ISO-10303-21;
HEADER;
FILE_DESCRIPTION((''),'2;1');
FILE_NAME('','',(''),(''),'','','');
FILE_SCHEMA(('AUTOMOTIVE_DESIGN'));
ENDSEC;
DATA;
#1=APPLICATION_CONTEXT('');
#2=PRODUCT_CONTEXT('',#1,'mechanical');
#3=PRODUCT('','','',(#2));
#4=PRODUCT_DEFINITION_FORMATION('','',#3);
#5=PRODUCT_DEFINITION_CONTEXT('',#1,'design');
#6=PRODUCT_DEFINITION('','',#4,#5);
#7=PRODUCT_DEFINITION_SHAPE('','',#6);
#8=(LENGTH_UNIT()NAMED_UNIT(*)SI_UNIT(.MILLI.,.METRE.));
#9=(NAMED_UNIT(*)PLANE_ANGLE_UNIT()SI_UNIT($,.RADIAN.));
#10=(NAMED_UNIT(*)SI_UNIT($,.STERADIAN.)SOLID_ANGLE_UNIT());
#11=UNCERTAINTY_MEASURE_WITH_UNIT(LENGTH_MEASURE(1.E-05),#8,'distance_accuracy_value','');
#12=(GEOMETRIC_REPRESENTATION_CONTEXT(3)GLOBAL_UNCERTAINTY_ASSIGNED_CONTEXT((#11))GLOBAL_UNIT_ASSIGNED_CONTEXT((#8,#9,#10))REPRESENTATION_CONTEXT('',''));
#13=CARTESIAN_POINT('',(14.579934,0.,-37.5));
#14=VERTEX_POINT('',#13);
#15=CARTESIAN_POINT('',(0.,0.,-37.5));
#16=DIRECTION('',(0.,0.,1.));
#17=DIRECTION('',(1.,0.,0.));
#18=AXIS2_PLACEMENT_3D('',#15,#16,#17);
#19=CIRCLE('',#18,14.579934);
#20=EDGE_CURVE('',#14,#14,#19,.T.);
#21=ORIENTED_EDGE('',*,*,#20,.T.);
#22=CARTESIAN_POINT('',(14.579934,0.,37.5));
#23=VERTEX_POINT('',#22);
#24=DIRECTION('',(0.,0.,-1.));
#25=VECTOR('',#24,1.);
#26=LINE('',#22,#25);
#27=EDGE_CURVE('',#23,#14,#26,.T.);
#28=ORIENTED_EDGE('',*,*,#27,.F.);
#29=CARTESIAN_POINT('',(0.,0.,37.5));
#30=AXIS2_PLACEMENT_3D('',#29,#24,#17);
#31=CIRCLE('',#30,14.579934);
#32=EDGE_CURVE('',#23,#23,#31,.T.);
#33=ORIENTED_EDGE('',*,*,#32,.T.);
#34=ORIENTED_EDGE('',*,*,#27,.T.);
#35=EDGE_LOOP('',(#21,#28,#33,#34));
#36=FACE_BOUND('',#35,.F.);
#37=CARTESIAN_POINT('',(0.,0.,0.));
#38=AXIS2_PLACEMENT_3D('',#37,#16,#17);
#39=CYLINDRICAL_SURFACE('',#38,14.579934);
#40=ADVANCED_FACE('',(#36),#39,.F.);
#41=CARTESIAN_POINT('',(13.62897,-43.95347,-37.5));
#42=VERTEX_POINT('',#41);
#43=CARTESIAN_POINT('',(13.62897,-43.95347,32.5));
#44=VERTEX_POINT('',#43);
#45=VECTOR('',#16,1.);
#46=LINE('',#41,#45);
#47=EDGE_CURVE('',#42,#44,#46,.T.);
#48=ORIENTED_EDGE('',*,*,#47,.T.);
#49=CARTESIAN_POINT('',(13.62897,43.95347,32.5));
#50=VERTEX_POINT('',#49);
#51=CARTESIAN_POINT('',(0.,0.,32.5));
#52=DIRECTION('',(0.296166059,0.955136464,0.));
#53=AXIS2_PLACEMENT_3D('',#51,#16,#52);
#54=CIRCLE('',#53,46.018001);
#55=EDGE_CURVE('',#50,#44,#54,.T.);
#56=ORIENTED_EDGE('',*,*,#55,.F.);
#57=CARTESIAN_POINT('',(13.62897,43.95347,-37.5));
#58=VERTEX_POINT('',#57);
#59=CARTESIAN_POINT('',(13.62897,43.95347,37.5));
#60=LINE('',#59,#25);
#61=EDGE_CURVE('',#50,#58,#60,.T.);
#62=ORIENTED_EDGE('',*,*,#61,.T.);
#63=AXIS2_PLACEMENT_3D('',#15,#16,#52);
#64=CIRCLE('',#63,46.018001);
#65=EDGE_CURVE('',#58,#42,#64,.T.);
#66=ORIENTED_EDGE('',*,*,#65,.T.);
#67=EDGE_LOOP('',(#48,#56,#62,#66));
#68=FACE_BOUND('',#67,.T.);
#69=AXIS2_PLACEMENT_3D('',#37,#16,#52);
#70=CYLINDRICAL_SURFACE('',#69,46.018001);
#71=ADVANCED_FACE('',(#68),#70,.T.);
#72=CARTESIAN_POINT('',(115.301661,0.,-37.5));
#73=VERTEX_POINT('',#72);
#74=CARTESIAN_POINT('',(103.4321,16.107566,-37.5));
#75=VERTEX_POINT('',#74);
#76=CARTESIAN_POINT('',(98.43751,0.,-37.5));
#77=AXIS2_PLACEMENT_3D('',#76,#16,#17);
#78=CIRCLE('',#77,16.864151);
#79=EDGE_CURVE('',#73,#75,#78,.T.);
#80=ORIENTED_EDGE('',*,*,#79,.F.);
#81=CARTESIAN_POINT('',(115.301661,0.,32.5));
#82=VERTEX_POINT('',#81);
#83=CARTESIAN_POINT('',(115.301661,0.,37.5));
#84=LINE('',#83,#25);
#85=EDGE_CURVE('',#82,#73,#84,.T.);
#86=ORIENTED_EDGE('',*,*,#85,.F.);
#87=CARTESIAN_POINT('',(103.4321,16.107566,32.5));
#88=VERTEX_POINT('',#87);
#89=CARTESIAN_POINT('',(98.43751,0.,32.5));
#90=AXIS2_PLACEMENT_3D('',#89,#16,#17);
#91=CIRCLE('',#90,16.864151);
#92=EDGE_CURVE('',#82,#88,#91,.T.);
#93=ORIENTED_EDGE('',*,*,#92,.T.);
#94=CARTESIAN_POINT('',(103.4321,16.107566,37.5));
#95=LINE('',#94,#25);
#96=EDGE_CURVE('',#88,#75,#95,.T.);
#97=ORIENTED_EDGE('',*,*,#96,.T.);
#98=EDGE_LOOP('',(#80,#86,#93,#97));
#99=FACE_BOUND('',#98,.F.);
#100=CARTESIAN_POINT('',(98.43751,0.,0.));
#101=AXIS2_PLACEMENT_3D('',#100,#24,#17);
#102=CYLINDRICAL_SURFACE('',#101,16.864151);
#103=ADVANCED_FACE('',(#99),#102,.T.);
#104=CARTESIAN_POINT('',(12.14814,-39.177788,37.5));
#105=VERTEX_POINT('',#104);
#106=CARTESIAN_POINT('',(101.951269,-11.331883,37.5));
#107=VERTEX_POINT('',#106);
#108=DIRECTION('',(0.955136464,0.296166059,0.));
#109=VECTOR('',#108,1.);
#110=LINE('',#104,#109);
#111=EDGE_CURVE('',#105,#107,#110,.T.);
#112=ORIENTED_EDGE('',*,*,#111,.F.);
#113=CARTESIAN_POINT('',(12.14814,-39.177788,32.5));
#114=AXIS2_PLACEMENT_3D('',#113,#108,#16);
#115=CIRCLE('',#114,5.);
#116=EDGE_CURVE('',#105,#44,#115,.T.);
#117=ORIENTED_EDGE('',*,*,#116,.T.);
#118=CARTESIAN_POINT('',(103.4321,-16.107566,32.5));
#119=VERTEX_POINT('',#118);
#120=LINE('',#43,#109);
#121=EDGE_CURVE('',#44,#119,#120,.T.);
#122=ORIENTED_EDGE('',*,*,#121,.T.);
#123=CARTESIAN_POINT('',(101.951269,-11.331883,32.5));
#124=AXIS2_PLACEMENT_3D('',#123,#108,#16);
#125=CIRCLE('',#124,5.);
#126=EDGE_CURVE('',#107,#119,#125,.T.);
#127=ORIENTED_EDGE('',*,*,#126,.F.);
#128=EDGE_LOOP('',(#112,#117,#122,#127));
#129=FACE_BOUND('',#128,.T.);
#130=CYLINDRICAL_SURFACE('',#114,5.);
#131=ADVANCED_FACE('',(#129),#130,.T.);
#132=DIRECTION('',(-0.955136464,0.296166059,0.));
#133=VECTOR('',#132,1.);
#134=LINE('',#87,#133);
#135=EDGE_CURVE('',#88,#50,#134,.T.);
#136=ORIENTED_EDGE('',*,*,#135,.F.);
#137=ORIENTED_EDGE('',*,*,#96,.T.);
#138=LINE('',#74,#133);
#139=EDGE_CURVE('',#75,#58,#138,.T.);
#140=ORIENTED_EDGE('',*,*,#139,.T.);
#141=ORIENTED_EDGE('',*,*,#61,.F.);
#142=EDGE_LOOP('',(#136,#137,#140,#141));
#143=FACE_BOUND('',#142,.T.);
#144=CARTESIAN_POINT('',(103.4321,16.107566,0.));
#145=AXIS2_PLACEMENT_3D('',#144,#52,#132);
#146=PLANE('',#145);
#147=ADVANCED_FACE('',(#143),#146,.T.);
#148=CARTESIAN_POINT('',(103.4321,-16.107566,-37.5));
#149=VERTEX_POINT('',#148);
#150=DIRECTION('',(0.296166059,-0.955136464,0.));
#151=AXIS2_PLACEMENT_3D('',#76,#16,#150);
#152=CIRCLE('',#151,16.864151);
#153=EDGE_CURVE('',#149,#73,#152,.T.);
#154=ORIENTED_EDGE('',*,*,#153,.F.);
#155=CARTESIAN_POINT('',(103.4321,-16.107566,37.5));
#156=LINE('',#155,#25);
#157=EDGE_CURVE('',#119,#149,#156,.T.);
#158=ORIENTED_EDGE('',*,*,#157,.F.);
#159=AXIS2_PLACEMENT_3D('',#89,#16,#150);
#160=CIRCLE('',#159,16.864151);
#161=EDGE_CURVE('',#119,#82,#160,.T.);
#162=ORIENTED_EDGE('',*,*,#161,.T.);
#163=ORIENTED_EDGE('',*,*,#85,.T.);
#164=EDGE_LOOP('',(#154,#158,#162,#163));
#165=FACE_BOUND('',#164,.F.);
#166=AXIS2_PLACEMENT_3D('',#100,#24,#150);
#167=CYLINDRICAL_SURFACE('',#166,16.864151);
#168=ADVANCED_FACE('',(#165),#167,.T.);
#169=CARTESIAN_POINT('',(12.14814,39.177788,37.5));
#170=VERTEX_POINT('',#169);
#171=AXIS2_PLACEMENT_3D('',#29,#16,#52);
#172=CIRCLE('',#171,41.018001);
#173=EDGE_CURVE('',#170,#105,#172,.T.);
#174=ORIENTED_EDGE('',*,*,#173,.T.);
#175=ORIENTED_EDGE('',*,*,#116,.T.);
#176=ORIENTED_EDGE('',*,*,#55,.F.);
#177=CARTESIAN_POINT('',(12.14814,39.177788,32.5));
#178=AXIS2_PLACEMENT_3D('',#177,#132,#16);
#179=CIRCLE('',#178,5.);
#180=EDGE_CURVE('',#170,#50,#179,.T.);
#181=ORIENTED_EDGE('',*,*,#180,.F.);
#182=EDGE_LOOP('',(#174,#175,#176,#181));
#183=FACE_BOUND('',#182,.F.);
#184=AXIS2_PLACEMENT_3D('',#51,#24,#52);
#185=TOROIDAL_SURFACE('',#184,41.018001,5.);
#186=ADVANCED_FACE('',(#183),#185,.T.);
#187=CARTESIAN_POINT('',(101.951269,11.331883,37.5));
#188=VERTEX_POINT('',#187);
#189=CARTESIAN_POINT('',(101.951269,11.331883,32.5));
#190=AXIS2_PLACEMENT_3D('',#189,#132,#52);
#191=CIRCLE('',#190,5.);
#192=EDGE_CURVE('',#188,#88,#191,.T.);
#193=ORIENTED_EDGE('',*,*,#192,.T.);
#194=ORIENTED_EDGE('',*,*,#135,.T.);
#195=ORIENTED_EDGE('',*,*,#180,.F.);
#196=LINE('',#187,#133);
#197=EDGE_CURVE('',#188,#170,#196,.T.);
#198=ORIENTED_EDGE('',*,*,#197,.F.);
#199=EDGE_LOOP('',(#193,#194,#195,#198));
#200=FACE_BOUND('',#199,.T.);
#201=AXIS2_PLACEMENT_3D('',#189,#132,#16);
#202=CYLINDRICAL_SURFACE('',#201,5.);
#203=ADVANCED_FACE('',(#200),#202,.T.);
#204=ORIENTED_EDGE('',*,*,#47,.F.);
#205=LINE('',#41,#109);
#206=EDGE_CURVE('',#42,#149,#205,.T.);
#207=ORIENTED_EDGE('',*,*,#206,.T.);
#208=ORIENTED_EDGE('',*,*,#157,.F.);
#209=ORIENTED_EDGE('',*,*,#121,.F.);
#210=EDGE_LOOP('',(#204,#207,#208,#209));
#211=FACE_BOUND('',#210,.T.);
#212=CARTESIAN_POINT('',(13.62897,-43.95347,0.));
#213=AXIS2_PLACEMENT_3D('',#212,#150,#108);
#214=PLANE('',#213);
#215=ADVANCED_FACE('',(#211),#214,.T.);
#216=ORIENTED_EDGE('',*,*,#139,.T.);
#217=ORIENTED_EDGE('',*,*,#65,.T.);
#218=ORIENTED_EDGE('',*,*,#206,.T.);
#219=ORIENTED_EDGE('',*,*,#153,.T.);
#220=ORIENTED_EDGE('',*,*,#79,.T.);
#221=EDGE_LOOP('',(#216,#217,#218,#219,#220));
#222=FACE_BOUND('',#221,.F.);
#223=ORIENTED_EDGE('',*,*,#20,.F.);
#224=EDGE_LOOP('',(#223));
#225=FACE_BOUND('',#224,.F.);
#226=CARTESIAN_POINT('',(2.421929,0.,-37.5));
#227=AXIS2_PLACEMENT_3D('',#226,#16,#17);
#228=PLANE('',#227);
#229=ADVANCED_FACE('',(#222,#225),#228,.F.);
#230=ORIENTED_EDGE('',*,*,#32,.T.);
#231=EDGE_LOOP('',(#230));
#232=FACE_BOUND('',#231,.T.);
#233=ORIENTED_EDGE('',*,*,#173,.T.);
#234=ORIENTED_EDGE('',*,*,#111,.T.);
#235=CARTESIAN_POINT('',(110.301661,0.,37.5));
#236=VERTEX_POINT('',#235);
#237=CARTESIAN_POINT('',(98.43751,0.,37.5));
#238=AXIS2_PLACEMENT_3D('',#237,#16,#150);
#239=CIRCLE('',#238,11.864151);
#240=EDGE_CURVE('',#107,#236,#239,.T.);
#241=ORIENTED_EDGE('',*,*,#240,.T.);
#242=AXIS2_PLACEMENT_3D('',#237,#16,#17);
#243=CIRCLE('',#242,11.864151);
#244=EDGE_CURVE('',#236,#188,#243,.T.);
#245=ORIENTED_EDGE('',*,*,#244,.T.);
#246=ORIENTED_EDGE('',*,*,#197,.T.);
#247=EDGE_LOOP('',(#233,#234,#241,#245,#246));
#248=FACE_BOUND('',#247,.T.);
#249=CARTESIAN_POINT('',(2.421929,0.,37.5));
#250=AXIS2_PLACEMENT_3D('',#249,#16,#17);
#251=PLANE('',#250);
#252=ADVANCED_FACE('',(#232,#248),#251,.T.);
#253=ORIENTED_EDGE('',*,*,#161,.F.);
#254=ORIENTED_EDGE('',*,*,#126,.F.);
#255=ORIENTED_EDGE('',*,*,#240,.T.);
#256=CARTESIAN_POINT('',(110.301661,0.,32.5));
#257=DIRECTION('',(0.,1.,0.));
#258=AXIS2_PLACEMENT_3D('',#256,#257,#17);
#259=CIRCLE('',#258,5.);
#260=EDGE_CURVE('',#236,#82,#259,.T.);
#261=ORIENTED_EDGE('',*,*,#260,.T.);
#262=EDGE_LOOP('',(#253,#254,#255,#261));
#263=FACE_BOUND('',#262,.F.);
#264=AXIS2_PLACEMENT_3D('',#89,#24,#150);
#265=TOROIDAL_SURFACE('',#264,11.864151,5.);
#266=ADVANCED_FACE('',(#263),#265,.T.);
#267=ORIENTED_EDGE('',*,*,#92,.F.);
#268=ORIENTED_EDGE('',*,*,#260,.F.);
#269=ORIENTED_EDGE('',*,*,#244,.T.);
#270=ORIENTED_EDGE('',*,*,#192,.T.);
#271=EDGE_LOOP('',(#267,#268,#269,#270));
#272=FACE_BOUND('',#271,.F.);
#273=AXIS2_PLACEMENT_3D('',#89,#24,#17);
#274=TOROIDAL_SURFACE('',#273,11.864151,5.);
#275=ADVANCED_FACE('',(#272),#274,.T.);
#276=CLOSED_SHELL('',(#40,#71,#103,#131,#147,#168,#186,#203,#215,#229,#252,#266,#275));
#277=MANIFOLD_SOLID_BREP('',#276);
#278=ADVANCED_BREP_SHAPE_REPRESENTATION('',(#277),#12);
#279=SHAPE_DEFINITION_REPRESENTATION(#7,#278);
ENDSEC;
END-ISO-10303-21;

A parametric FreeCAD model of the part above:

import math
import FreeCAD as App
import Part
import Sketcher
from FreeCAD import Vector
Q = App.Units.Quantity


def edges_at(feature, points):
    """Names of the edges that pass closest to the given points."""
    edges = feature.Shape.Edges
    near = lambda p: min(range(len(edges)), key=lambda i: edges[i].distToShape(Part.Vertex(*p))[0])
    return sorted({f"Edge{near(p) + 1}" for p in points})

doc = App.newDocument("Part")
body = doc.addObject("PartDesign::Body", "Body")

sketch1 = body.newObject("Sketcher::SketchObject", "Sketch")
sketch1.AttachmentSupport = (doc.getObject("XY_Plane"), [""])
sketch1.MapMode = "FlatFace"
sketch1.addGeometry([
    Part.ArcOfCircle(Part.Circle(Vector(0, 0, 0), Vector(0, 0, 1), 46), math.radians(73), math.radians(287)),
    Part.LineSegment(Vector(14, -44, 0), Vector(103, -16, 0)),
    Part.ArcOfCircle(Part.Circle(Vector(98, 0, 0), Vector(0, 0, 1), 17), math.radians(-73), math.radians(0)),
    Part.ArcOfCircle(Part.Circle(Vector(98, 0, 0), Vector(0, 0, 1), 17), math.radians(0), math.radians(73)),
    Part.LineSegment(Vector(103, 16, 0), Vector(14, 44, 0)),
], False)
sketch1.addConstraint([
    Sketcher.Constraint("Tangent", 0, 2, 1, 1),
    Sketcher.Constraint("Tangent", 1, 2, 2, 1),
    Sketcher.Constraint("Tangent", 2, 2, 3, 1),
    Sketcher.Constraint("Tangent", 3, 2, 4, 1),
    Sketcher.Constraint("Tangent", 4, 2, 0, 1),
    Sketcher.Constraint("Coincident", 0, 3, -1, 1),
    Sketcher.Constraint("Equal", 2, 3),
    Sketcher.Constraint("PointOnObject", 2, 3, -1),
    Sketcher.Constraint("PointOnObject", 2, 2, -1),
    Sketcher.Constraint("Radius", 0, Q("46.018001 mm")),
    Sketcher.Constraint("Radius", 2, Q("16.864151 mm")),
    Sketcher.Constraint("DistanceX", -1, 1, 1, 2, Q("103.4321 mm")),
])
pad1 = body.newObject("PartDesign::Pad", "Pad")
pad1.Profile = sketch1
pad1.Length = 75
pad1.Midplane = True

sketch2 = body.newObject("Sketcher::SketchObject", "Sketch001")
sketch2.AttachmentSupport = (doc.getObject("XY_Plane"), [""])
sketch2.MapMode = "FlatFace"
sketch2.addGeometry(Part.Circle(Vector(0, 0, 0), Vector(0, 0, 1), 15), False)
sketch2.addConstraint([
    Sketcher.Constraint("Coincident", 0, 3, -1, 1),
    Sketcher.Constraint("Diameter", 0, Q("29.159867 mm")),
])
pocket1 = body.newObject("PartDesign::Pocket", "Pocket")
pocket1.Profile = sketch2
pocket1.Type = "ThroughAll"
pocket1.Midplane = True
doc.recompute()

fillet = body.newObject("PartDesign::Fillet", "Fillet")
fillet.Base = (pocket1, edges_at(pocket1, [(58.531, -30.031, 37.5)]))
fillet.Radius = 5

doc.recompute()
